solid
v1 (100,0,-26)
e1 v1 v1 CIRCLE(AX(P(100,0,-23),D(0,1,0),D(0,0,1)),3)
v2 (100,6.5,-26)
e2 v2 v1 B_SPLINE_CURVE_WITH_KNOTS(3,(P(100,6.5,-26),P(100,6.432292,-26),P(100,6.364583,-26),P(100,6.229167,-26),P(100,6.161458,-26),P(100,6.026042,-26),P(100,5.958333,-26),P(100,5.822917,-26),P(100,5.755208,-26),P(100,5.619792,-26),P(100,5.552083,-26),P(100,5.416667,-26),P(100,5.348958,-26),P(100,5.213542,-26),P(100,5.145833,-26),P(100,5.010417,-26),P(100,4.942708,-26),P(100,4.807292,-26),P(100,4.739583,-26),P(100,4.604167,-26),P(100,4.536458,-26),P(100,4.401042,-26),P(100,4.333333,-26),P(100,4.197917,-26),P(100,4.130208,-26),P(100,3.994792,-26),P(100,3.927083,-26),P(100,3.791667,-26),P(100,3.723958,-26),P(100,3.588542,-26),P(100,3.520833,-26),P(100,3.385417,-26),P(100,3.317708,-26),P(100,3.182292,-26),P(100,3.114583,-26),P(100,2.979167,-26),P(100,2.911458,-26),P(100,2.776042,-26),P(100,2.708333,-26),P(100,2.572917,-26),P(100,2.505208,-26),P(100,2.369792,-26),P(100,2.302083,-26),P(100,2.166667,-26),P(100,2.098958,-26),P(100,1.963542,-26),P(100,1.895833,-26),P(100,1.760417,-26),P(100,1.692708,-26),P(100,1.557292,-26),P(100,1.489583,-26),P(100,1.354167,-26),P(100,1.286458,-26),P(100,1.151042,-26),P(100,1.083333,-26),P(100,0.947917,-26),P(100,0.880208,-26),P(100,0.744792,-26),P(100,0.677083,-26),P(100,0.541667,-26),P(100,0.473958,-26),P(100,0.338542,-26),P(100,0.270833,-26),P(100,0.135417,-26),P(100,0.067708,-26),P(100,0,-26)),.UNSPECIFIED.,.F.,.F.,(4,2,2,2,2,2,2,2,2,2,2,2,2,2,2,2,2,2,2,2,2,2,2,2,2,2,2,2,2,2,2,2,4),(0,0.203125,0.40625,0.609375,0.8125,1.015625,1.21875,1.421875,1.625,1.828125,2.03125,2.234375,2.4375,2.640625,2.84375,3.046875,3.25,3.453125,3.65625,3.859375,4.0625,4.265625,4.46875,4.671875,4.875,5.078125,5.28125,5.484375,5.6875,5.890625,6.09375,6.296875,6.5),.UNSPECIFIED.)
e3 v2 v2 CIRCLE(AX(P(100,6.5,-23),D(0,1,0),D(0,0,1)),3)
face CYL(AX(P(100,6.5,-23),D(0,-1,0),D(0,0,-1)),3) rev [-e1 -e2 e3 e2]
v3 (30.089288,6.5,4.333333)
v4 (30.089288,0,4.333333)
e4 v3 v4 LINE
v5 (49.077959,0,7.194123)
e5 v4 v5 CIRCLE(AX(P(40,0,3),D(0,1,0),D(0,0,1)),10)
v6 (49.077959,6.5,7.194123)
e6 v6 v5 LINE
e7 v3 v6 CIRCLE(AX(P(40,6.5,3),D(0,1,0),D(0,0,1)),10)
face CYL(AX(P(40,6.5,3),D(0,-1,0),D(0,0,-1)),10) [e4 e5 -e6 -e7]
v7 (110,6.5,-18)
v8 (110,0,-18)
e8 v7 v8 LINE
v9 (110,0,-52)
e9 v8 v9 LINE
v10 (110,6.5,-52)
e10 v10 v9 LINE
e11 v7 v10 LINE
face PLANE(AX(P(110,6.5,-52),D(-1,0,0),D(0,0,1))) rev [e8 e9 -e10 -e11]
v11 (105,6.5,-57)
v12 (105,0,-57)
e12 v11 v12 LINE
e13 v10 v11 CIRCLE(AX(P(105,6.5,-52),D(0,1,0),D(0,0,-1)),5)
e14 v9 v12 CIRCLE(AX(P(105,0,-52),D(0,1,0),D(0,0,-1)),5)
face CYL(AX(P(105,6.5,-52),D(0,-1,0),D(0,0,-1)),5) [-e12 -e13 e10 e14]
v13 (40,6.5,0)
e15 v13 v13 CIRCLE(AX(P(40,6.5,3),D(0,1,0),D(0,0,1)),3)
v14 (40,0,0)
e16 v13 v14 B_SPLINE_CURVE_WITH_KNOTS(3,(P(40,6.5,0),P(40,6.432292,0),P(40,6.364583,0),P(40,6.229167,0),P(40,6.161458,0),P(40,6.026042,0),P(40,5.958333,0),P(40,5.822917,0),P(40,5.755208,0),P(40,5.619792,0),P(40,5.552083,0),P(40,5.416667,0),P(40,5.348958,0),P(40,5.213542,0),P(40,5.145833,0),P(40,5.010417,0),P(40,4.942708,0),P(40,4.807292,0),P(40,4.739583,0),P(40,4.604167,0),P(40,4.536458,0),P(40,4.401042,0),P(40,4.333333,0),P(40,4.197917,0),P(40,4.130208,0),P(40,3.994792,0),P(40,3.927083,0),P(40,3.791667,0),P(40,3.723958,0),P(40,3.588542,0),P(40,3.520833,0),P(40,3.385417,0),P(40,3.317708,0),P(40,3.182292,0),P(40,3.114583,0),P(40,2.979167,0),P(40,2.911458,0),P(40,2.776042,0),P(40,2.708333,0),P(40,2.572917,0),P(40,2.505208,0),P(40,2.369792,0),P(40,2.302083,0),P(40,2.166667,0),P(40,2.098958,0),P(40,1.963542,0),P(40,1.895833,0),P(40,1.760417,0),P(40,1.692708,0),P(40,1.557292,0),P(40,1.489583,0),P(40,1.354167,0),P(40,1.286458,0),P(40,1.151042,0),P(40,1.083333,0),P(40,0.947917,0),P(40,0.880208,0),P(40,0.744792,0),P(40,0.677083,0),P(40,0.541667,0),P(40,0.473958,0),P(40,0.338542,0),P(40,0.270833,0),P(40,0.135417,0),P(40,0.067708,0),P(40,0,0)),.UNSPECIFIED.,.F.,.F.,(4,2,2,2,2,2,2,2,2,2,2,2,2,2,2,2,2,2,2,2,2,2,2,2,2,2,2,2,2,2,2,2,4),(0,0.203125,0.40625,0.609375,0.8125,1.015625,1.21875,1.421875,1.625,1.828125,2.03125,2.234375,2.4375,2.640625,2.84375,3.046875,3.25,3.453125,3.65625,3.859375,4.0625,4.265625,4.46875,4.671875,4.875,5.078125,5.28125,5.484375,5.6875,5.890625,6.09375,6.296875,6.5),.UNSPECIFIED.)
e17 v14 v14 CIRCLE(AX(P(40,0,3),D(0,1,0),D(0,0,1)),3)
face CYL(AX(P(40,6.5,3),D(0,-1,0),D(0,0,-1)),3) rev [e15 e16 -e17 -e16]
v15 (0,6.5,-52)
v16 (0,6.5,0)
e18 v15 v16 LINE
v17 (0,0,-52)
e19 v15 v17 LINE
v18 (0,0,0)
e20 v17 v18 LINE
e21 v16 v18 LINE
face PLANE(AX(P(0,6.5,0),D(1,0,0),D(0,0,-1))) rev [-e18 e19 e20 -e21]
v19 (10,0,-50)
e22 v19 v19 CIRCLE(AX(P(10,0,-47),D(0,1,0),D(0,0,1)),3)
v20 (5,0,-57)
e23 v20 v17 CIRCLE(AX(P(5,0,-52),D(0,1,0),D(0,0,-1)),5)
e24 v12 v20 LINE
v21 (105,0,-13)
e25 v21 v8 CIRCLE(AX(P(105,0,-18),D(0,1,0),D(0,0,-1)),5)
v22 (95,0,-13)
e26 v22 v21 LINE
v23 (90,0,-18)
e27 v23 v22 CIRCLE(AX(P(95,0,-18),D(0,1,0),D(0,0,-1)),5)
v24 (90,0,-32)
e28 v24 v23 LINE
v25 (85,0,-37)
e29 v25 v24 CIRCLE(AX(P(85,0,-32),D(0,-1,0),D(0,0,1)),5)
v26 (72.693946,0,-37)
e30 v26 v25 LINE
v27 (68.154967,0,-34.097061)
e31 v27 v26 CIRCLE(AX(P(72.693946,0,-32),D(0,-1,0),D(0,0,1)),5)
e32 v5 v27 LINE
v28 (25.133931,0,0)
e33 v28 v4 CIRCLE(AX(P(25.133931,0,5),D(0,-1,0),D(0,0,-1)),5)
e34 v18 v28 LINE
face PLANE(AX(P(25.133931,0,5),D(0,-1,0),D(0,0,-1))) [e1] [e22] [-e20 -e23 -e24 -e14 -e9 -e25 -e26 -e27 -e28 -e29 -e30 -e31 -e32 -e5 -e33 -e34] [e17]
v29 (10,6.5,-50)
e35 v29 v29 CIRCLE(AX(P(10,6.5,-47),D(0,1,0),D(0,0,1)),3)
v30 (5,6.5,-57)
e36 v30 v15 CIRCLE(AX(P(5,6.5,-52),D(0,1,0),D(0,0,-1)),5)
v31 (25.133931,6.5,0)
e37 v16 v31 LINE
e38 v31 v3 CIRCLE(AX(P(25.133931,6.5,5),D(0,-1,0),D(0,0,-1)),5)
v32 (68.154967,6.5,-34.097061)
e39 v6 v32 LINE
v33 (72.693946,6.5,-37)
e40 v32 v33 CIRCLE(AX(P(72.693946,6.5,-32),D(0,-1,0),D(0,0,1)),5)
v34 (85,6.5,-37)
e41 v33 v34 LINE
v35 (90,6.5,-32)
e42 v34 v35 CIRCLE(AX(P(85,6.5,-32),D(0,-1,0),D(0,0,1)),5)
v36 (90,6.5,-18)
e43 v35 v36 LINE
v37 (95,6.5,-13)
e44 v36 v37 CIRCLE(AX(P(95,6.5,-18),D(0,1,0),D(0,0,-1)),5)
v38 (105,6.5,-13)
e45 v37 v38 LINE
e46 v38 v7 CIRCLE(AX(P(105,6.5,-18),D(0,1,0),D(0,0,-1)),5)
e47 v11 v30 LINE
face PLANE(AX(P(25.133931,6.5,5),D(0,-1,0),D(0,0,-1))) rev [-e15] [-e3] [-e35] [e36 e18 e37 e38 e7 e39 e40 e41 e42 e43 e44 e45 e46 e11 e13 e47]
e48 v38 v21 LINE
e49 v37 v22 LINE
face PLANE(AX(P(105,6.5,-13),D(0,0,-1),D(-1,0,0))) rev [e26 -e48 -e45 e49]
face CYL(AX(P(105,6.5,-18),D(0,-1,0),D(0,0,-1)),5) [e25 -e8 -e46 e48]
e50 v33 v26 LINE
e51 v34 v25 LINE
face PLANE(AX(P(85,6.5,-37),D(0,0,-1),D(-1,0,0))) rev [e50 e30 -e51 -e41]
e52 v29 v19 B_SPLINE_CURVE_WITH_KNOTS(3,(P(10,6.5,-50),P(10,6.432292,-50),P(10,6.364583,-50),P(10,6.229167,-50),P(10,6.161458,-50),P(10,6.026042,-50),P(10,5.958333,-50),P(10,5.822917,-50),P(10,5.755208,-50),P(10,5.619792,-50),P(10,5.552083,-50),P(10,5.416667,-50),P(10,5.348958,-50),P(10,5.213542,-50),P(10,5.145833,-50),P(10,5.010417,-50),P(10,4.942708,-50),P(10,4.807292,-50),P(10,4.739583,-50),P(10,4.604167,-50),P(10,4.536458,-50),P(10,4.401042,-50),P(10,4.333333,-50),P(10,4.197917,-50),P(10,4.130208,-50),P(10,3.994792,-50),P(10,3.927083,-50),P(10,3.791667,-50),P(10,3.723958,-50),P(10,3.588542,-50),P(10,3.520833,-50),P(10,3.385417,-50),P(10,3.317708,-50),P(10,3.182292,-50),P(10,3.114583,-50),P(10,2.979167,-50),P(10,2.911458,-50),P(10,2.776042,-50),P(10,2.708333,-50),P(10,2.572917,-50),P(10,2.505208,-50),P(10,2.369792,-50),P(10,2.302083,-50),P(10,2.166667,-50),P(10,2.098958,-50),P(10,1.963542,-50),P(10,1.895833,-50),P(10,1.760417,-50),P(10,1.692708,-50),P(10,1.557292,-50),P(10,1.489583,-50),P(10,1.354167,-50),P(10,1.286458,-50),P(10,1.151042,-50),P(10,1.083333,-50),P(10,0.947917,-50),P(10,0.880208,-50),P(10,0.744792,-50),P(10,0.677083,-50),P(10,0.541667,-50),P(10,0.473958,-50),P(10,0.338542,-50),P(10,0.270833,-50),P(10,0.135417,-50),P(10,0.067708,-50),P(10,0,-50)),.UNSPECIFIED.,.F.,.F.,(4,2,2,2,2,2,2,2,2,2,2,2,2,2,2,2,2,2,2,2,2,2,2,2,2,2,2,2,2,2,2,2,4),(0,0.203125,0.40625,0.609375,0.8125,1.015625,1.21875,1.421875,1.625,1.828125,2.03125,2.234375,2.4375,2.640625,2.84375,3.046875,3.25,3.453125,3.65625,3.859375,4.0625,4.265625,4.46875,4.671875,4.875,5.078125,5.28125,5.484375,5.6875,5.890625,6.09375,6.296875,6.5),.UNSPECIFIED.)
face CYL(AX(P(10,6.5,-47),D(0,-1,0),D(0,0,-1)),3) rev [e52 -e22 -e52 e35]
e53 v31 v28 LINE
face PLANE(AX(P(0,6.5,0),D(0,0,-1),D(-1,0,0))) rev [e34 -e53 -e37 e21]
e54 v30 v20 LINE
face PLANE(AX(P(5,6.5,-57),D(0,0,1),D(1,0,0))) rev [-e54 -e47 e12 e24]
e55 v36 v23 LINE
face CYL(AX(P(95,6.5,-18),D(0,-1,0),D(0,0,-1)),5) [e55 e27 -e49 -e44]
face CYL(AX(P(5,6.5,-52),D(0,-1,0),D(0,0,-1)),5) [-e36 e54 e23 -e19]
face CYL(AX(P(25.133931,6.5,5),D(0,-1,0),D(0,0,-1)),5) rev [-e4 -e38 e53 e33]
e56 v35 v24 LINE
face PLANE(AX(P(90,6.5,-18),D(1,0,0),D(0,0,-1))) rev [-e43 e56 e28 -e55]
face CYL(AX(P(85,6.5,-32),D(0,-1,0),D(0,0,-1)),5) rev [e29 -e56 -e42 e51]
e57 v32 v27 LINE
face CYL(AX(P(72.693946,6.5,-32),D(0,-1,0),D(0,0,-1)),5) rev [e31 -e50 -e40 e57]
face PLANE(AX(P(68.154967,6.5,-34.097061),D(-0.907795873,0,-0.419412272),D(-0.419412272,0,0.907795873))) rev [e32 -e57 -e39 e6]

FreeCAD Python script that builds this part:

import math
import FreeCAD as App
import Part
import Sketcher
Q = App.Units.Quantity

doc = App.newDocument("Part")
body = doc.addObject("PartDesign::Body", "Body")

sketch1 = body.newObject("Sketcher::SketchObject", "Sketch")
sketch1.AttachmentSupport = (doc.getObject("XZ_Plane"), [""])
sketch1.MapMode = "FlatFace"
sketch1.addGeometry([
    Part.LineSegment(App.Vector(0, -52, 0), App.Vector(0, 0, 0)),
    Part.LineSegment(App.Vector(0, 0, 0), App.Vector(25.1, 0, 0)),
    Part.ArcOfCircle(Part.Circle(App.Vector(25.1, 5, 0), App.Vector(0, 0, 1), 5), math.radians(-90), math.radians(-8)),
    Part.ArcOfCircle(Part.Circle(App.Vector(40, 3, 0), App.Vector(0, 0, 1), 10), math.radians(25), math.radians(172)),
    Part.LineSegment(App.Vector(49.1, 7.2, 0), App.Vector(68.2, -34.1, 0)),
    Part.ArcOfCircle(Part.Circle(App.Vector(72.7, -32, 0), App.Vector(0, 0, 1), 5), math.radians(-155), math.radians(-90)),
    Part.LineSegment(App.Vector(72.7, -37, 0), App.Vector(85, -37, 0)),
    Part.ArcOfCircle(Part.Circle(App.Vector(85, -32, 0), App.Vector(0, 0, 1), 5), math.radians(-90), math.radians(0)),
    Part.LineSegment(App.Vector(90, -32, 0), App.Vector(90, -18, 0)),
    Part.ArcOfCircle(Part.Circle(App.Vector(95, -18, 0), App.Vector(0, 0, 1), 5), math.radians(90), math.radians(180)),
    Part.LineSegment(App.Vector(95, -13, 0), App.Vector(105, -13, 0)),
    Part.ArcOfCircle(Part.Circle(App.Vector(105, -18, 0), App.Vector(0, 0, 1), 5), math.radians(0), math.radians(90)),
    Part.LineSegment(App.Vector(110, -18, 0), App.Vector(110, -52, 0)),
    Part.ArcOfCircle(Part.Circle(App.Vector(105, -52, 0), App.Vector(0, 0, 1), 5), math.radians(-90), math.radians(0)),
    Part.LineSegment(App.Vector(105, -57, 0), App.Vector(5, -57, 0)),
    Part.ArcOfCircle(Part.Circle(App.Vector(5, -52, 0), App.Vector(0, 0, 1), 5), math.radians(180), math.radians(270)),
    Part.Circle(App.Vector(40, 3, 0), App.Vector(0, 0, 1), 3),
    Part.Circle(App.Vector(100, -23, 0), App.Vector(0, 0, 1), 3),
    Part.Circle(App.Vector(10, -47, 0), App.Vector(0, 0, 1), 3),
], False)
sketch1.addConstraint([
    Sketcher.Constraint("Coincident", 0, 2, 1, 1),
    Sketcher.Constraint("Tangent", 1, 2, 2, 1),
    Sketcher.Constraint("Tangent", 2, 2, 3, 2),
    Sketcher.Constraint("Tangent", 3, 1, 4, 1),
    Sketcher.Constraint("Tangent", 4, 2, 5, 1),
    Sketcher.Constraint("Tangent", 5, 2, 6, 1),
    Sketcher.Constraint("Tangent", 6, 2, 7, 1),
    Sketcher.Constraint("Tangent", 7, 2, 8, 1),
    Sketcher.Constraint("Tangent", 8, 2, 9, 2),
    Sketcher.Constraint("Tangent", 9, 1, 10, 1),
    Sketcher.Constraint("Tangent", 10, 2, 11, 2),
    Sketcher.Constraint("Tangent", 11, 1, 12, 1),
    Sketcher.Constraint("Tangent", 12, 2, 13, 2),
    Sketcher.Constraint("Tangent", 13, 1, 14, 1),
    Sketcher.Constraint("Tangent", 14, 2, 15, 2),
    Sketcher.Constraint("Tangent", 15, 1, 0, 1),
    Sketcher.Constraint("Vertical", 0),
    Sketcher.Constraint("Horizontal", 1),
    Sketcher.Constraint("Horizontal", 6),
    Sketcher.Constraint("Vertical", 8),
    Sketcher.Constraint("Horizontal", 10),
    Sketcher.Constraint("Vertical", 12),
    Sketcher.Constraint("Horizontal", 14),
    Sketcher.Constraint("Coincident", 0, 2, -1, 1),
    Sketcher.Constraint("Coincident", 16, 3, 3, 3),
    Sketcher.Constraint("Equal", 2, 5),
    Sketcher.Constraint("Equal", 5, 7),
    Sketcher.Constraint("Equal", 7, 9),
    Sketcher.Constraint("Equal", 9, 11),
    Sketcher.Constraint("Equal", 11, 13),
    Sketcher.Constraint("Equal", 13, 15),
    Sketcher.Constraint("Equal", 16, 17),
    Sketcher.Constraint("Equal", 17, 18),
    Sketcher.Constraint("Diameter", 16, Q("6 mm")),
    Sketcher.Constraint("Radius", 2, Q("5 mm")),
    Sketcher.Constraint("Radius", 3, Q("10 mm")),
    Sketcher.Constraint("DistanceX", 10, 1, 10, 2, Q("10 mm")),
    Sketcher.Constraint("DistanceX", 14, 2, 14, 1, Q("100 mm")),
    Sketcher.Constraint("DistanceY", 0, 1, 0, 2, Q("52 mm")),
    Sketcher.Constraint("DistanceY", 8, 1, 8, 2, Q("14 mm")),
    Sketcher.Constraint("DistanceY", 12, 2, 12, 1, Q("34 mm")),
    Sketcher.Constraint("DistanceX", -1, 1, 3, 3, Q("40 mm")),
    Sketcher.Constraint("DistanceY", -1, 1, 3, 3, Q("3 mm")),
    Sketcher.Constraint("DistanceX", -1, 1, 17, 3, Q("100 mm")),
    Sketcher.Constraint("DistanceY", 17, 3, -1, 1, Q("23 mm")),
    Sketcher.Constraint("DistanceX", -1, 1, 18, 3, Q("10 mm")),
    Sketcher.Constraint("DistanceY", 18, 3, -1, 1, Q("47 mm")),
    Sketcher.Constraint("DistanceX", 6, 1, 6, 2, Q("12.306054 mm")),
])
pad1 = body.newObject("PartDesign::Pad", "Pad")
pad1.Profile = sketch1
pad1.Length = 6.5
pad1.Reversed = True

doc.recompute()
